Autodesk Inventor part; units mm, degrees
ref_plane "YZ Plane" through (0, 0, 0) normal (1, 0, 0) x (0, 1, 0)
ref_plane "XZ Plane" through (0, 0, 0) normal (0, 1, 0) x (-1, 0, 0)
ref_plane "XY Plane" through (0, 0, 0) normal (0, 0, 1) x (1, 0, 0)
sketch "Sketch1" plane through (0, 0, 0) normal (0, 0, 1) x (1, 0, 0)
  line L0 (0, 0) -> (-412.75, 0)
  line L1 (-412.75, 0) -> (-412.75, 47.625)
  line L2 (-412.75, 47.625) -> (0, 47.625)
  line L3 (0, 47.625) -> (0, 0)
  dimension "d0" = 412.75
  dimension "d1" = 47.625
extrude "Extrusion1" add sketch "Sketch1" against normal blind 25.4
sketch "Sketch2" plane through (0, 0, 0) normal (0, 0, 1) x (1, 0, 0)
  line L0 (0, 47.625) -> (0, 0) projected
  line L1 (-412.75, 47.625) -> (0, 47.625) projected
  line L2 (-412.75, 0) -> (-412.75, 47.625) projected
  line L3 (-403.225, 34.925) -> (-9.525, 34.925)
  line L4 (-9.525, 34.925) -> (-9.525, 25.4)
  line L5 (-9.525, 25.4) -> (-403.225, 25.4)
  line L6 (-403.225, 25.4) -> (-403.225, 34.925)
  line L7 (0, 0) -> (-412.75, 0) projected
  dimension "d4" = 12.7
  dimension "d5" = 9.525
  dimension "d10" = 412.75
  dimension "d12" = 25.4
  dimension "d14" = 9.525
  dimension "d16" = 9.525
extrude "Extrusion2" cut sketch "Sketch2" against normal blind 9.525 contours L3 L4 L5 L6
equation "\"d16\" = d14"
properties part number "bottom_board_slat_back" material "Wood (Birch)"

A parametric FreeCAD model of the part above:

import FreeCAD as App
import Part
import Sketcher
from FreeCAD import Vector
Q = App.Units.Quantity


def add_polygon(sketch, points):
    """Adds a closed chain of lines whose ends are joined by coincident constraints."""
    first, n = sketch.GeometryCount, len(points)
    for a, b in zip(points, points[1:] + points[:1]):
        sketch.addGeometry(Part.LineSegment(App.Vector(*a, 0), App.Vector(*b, 0)), False)
    for i in range(n):
        sketch.addConstraint(Sketcher.Constraint("Coincident", first + i, 2, first + (i + 1) % n, 1))

doc = App.newDocument("Part")
params = doc.addObject("Spreadsheet::Sheet", "Params")
for row, (alias, value) in enumerate([
    ("sketch1_width", "16.25 in"),
    ("sketch1_height", "1.875 in"),
    ("pad1_length", "1 in"),
    ("sketch2_height", "0.375 in"),
    ("sketch2_width", "15.5 in"),
    ("pocket1_length", "0.375 in"),
], start=1):
    params.set(f"A{row}", alias)
    params.set(f"B{row}", "=" + value)
    params.setAlias(f"B{row}", alias)

body = doc.addObject("PartDesign::Body", "Body")

sketch1 = body.newObject("Sketcher::SketchObject", "Sketch")
sketch1.AttachmentSupport = (doc.getObject("XY_Plane"), [""])
sketch1.MapMode = "FlatFace"
add_polygon(sketch1, [(-413, 0), (0, 0), (0, 48), (-413, 48)])
sketch1.addConstraint([
    Sketcher.Constraint("Horizontal", 0),
    Sketcher.Constraint("Vertical", 1),
    Sketcher.Constraint("Horizontal", 2),
    Sketcher.Constraint("Vertical", 3),
    Sketcher.Constraint("Coincident", 0, 2, -1, 1),
    Sketcher.Constraint("DistanceX", 0, 1, 0, 2, Q("16.25 in")),
    Sketcher.Constraint("DistanceY", 1, 1, 1, 2, Q("1.875 in")),
])
sketch1.setExpression("Constraints[9]", "Params.sketch1_width")
sketch1.setExpression("Constraints[10]", "Params.sketch1_height")
pad1 = body.newObject("PartDesign::Pad", "Pad")
pad1.Profile = sketch1
pad1.setExpression("Length", "Params.pad1_length")
pad1.Reversed = True

sketch2 = body.newObject("Sketcher::SketchObject", "Sketch001")
sketch2.AttachmentSupport = (doc.getObject("XY_Plane"), [""])
sketch2.MapMode = "FlatFace"
add_polygon(sketch2, [(-10, 35), (-403, 35), (-403, 25), (-10, 25)])
sketch2.addConstraint([
    Sketcher.Constraint("Horizontal", 0),
    Sketcher.Constraint("Vertical", 1),
    Sketcher.Constraint("Horizontal", 2),
    Sketcher.Constraint("Vertical", 3),
    Sketcher.Constraint("DistanceY", -1, 1, 1, 2, Q("1 in")),
    Sketcher.Constraint("DistanceY", 1, 2, 1, 1, Q("0.375 in")),
    Sketcher.Constraint("DistanceX", 0, 2, 0, 1, Q("15.5 in")),
    Sketcher.Constraint("DistanceX", 2, 2, -1, 1, Q("0.375 in")),
])
sketch2.setExpression("Constraints[9]", "Params.sketch2_height")
sketch2.setExpression("Constraints[10]", "Params.sketch2_width")
pocket1 = body.newObject("PartDesign::Pocket", "Pocket")
pocket1.Profile = sketch2
pocket1.setExpression("Length", "Params.pocket1_length")

doc.recompute()
